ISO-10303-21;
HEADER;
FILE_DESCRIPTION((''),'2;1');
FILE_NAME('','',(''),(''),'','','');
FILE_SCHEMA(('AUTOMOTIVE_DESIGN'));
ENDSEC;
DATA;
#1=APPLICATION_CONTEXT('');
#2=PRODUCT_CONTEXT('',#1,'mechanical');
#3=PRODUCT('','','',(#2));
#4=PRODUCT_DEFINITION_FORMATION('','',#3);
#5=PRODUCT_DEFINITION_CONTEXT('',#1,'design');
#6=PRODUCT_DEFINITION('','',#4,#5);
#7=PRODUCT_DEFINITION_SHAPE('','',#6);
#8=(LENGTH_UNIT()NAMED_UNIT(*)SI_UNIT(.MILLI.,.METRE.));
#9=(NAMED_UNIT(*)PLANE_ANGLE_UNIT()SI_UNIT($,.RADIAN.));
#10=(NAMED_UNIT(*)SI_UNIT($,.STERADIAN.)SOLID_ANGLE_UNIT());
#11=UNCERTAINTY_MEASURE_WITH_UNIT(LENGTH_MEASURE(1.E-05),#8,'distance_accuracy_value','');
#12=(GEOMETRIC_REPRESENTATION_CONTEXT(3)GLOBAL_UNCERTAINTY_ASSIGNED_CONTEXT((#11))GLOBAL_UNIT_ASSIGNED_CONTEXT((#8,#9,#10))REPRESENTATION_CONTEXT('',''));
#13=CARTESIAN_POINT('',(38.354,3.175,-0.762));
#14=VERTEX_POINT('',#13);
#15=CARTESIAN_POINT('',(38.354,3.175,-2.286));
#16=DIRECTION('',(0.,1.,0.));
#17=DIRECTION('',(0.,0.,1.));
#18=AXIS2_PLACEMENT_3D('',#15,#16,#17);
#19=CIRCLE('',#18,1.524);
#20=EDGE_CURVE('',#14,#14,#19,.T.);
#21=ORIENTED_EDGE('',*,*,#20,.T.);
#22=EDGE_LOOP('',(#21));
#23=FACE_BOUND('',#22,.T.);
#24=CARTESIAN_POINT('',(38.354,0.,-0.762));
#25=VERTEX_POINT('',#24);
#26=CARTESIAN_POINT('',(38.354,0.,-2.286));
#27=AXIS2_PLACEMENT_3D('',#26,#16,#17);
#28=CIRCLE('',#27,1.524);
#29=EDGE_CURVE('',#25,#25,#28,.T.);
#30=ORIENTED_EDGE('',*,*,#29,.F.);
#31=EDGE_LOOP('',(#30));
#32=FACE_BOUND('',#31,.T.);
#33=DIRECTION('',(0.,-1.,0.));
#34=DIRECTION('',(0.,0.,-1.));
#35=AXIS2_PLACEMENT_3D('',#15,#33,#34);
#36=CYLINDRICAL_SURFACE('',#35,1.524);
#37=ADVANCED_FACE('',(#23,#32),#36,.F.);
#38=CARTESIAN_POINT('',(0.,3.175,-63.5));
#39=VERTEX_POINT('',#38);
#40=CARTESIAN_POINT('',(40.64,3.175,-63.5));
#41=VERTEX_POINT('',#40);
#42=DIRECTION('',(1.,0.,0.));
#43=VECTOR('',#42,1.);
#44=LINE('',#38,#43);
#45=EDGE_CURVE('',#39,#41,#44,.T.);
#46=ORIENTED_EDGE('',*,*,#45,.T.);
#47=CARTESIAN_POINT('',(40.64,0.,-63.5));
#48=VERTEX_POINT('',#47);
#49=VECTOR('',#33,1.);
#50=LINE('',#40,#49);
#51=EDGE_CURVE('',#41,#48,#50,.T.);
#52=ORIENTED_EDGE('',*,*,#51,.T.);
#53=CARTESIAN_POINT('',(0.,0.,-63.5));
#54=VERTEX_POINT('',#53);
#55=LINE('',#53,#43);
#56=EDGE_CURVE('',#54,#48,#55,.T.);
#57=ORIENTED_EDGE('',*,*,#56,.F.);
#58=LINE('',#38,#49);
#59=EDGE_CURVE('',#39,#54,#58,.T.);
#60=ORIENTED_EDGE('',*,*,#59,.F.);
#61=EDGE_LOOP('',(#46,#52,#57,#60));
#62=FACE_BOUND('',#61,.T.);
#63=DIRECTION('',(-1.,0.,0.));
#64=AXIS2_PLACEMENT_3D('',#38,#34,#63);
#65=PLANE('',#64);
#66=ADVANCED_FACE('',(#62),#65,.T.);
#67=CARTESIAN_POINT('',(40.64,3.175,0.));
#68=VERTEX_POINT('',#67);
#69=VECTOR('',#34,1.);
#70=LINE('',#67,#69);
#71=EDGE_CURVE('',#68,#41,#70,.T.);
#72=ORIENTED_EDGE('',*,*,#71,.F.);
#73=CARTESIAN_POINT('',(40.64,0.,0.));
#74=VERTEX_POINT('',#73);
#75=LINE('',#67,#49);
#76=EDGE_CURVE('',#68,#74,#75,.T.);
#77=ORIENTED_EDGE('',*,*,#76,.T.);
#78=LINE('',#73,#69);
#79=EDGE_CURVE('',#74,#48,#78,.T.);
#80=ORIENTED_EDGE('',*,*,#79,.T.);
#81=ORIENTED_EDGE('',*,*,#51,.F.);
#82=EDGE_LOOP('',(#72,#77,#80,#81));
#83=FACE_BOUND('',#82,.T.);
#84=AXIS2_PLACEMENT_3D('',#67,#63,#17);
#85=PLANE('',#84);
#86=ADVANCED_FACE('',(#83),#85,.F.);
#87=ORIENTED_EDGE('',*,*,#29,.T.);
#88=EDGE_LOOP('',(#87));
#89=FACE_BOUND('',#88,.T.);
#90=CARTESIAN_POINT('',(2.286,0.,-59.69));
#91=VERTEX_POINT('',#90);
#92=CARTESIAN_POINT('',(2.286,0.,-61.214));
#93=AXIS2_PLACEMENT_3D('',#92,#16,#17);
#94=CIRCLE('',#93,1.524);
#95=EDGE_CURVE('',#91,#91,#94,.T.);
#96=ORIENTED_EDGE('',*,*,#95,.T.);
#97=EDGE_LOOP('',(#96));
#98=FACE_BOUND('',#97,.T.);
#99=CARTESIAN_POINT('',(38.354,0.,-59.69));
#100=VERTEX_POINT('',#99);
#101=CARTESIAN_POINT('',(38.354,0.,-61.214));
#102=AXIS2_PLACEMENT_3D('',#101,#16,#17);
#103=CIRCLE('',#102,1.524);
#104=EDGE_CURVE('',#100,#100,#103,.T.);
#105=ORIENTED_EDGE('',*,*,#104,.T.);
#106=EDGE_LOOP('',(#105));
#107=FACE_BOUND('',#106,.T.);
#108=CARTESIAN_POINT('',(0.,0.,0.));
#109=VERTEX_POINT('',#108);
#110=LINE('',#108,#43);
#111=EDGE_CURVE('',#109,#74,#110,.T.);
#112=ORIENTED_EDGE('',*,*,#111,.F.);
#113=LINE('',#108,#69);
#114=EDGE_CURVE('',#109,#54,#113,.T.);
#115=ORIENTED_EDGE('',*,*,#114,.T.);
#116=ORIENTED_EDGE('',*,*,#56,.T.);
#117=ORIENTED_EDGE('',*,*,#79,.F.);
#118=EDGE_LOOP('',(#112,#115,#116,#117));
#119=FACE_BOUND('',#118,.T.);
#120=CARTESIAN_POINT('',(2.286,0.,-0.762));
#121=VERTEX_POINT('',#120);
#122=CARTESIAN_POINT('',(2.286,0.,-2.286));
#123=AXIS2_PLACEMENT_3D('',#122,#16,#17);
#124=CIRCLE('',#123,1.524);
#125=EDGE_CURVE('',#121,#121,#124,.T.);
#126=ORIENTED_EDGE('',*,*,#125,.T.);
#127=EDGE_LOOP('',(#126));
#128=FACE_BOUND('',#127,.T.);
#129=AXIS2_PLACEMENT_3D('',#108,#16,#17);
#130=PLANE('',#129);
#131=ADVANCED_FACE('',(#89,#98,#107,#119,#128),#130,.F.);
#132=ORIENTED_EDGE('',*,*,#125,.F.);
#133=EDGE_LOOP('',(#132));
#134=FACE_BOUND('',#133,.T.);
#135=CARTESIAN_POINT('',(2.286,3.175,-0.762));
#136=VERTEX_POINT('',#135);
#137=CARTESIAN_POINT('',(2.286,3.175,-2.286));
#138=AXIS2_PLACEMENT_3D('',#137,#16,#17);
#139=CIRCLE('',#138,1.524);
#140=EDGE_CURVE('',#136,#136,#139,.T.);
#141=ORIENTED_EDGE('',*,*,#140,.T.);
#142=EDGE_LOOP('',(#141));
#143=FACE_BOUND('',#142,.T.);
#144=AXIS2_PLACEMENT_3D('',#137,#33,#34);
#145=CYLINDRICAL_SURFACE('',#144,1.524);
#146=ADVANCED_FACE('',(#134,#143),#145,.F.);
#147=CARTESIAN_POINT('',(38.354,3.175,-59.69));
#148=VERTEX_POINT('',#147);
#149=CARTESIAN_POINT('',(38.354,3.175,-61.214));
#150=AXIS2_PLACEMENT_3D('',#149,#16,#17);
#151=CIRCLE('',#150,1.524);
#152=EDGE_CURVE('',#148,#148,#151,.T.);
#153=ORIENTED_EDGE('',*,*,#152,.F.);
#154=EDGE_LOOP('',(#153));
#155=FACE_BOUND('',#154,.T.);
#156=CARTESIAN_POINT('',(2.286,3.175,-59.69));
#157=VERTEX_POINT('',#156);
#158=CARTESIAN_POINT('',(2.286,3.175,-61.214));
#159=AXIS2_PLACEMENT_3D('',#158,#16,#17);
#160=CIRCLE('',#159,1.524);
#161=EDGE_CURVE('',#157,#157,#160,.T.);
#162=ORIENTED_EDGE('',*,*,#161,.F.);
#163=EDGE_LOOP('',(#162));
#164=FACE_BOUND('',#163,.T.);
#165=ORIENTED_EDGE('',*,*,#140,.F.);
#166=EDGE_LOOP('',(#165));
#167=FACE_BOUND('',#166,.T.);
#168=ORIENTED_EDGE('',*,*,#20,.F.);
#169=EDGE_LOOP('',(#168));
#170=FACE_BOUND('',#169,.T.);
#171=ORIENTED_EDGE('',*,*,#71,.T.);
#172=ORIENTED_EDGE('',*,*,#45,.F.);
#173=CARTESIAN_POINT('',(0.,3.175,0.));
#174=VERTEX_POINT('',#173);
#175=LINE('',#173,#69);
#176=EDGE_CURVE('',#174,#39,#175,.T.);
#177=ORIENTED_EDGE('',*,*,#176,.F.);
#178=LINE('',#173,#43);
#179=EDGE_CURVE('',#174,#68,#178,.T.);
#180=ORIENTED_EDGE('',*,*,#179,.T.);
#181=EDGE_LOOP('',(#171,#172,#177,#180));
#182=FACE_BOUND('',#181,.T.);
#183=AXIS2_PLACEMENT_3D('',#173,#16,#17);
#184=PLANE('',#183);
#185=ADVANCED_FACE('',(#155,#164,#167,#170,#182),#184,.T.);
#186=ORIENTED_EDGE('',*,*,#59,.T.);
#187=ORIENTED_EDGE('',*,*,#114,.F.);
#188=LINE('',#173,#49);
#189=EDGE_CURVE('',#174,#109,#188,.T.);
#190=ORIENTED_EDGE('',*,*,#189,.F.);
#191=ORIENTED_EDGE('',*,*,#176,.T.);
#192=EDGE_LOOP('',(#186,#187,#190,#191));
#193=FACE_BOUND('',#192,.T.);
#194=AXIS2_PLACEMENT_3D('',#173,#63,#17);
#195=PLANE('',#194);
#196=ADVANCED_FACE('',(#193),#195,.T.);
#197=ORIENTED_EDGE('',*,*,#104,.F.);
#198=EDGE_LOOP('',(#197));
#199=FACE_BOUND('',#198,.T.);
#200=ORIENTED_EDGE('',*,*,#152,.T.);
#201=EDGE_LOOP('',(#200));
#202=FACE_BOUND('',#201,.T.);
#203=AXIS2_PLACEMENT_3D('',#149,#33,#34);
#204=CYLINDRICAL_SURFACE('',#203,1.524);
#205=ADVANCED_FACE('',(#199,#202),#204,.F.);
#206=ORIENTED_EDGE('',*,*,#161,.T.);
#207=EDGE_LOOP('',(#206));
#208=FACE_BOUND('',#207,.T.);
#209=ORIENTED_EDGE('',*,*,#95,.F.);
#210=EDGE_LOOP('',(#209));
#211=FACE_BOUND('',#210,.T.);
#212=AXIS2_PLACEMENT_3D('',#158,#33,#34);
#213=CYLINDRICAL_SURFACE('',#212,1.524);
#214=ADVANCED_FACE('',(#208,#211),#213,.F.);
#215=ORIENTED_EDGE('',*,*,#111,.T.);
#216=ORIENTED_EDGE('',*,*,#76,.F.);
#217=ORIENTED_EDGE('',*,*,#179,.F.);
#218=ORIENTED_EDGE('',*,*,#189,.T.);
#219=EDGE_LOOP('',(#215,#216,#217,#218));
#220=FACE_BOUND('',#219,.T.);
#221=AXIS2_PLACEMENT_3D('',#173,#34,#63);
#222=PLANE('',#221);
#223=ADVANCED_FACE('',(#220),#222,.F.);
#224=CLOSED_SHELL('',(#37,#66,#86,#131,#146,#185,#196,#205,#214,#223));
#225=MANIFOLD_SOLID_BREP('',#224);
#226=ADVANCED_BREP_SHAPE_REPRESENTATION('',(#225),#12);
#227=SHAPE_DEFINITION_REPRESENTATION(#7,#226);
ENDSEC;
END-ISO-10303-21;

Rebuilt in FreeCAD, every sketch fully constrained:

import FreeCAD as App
import Part
import Sketcher
Q = App.Units.Quantity


def add_polygon(sketch, points):
    """Adds a closed chain of lines whose ends are joined by coincident constraints."""
    first, n = sketch.GeometryCount, len(points)
    for a, b in zip(points, points[1:] + points[:1]):
        sketch.addGeometry(Part.LineSegment(App.Vector(*a, 0), App.Vector(*b, 0)), False)
    for i in range(n):
        sketch.addConstraint(Sketcher.Constraint("Coincident", first + i, 2, first + (i + 1) % n, 1))

doc = App.newDocument("Part")
body = doc.addObject("PartDesign::Body", "Body")

sketch1 = body.newObject("Sketcher::SketchObject", "Sketch")
sketch1.AttachmentSupport = (doc.getObject("XZ_Plane"), [""])
sketch1.MapMode = "FlatFace"
add_polygon(sketch1, [(0, -63.5), (0, 0), (40.6, 0), (40.6, -63.5)])
sketch1.addGeometry(Part.Circle(App.Vector(2.3, -2.3, 0), App.Vector(0, 0, 1), 1.5), False)
sketch1.addGeometry(Part.Circle(App.Vector(38.4, -2.3, 0), App.Vector(0, 0, 1), 1.5), False)
sketch1.addGeometry(Part.Circle(App.Vector(2.3, -61.2, 0), App.Vector(0, 0, 1), 1.5), False)
sketch1.addGeometry(Part.Circle(App.Vector(38.4, -61.2, 0), App.Vector(0, 0, 1), 1.5), False)
sketch1.addConstraint([
    Sketcher.Constraint("Vertical", 0),
    Sketcher.Constraint("Horizontal", 1),
    Sketcher.Constraint("Vertical", 2),
    Sketcher.Constraint("Horizontal", 3),
    Sketcher.Constraint("Coincident", 0, 2, -1, 1),
    Sketcher.Constraint("Equal", 4, 5),
    Sketcher.Constraint("Equal", 5, 6),
    Sketcher.Constraint("Equal", 6, 7),
    Sketcher.Constraint("Horizontal", 4, 3, 5, 3),
    Sketcher.Constraint("Horizontal", 6, 3, 7, 3),
    Sketcher.Constraint("Vertical", 4, 3, 6, 3),
    Sketcher.Constraint("Vertical", 5, 3, 7, 3),
    Sketcher.Constraint("Diameter", 4, Q("0.12 in")),
    Sketcher.Constraint("DistanceX", 1, 1, 1, 2, Q("1.6 in")),
    Sketcher.Constraint("DistanceY", 0, 1, 0, 2, Q("2.5 in")),
    Sketcher.Constraint("DistanceX", -1, 1, 4, 3, Q("0.09 in")),
    Sketcher.Constraint("DistanceY", 4, 3, -1, 1, Q("0.09 in")),
    Sketcher.Constraint("DistanceX", -1, 1, 5, 3, Q("1.51 in")),
    Sketcher.Constraint("DistanceY", 6, 3, -1, 1, Q("2.41 in")),
])
pad1 = body.newObject("PartDesign::Pad", "Pad")
pad1.Profile = sketch1
pad1.Length = Q("0.125 in")
pad1.Reversed = True

doc.recompute()
